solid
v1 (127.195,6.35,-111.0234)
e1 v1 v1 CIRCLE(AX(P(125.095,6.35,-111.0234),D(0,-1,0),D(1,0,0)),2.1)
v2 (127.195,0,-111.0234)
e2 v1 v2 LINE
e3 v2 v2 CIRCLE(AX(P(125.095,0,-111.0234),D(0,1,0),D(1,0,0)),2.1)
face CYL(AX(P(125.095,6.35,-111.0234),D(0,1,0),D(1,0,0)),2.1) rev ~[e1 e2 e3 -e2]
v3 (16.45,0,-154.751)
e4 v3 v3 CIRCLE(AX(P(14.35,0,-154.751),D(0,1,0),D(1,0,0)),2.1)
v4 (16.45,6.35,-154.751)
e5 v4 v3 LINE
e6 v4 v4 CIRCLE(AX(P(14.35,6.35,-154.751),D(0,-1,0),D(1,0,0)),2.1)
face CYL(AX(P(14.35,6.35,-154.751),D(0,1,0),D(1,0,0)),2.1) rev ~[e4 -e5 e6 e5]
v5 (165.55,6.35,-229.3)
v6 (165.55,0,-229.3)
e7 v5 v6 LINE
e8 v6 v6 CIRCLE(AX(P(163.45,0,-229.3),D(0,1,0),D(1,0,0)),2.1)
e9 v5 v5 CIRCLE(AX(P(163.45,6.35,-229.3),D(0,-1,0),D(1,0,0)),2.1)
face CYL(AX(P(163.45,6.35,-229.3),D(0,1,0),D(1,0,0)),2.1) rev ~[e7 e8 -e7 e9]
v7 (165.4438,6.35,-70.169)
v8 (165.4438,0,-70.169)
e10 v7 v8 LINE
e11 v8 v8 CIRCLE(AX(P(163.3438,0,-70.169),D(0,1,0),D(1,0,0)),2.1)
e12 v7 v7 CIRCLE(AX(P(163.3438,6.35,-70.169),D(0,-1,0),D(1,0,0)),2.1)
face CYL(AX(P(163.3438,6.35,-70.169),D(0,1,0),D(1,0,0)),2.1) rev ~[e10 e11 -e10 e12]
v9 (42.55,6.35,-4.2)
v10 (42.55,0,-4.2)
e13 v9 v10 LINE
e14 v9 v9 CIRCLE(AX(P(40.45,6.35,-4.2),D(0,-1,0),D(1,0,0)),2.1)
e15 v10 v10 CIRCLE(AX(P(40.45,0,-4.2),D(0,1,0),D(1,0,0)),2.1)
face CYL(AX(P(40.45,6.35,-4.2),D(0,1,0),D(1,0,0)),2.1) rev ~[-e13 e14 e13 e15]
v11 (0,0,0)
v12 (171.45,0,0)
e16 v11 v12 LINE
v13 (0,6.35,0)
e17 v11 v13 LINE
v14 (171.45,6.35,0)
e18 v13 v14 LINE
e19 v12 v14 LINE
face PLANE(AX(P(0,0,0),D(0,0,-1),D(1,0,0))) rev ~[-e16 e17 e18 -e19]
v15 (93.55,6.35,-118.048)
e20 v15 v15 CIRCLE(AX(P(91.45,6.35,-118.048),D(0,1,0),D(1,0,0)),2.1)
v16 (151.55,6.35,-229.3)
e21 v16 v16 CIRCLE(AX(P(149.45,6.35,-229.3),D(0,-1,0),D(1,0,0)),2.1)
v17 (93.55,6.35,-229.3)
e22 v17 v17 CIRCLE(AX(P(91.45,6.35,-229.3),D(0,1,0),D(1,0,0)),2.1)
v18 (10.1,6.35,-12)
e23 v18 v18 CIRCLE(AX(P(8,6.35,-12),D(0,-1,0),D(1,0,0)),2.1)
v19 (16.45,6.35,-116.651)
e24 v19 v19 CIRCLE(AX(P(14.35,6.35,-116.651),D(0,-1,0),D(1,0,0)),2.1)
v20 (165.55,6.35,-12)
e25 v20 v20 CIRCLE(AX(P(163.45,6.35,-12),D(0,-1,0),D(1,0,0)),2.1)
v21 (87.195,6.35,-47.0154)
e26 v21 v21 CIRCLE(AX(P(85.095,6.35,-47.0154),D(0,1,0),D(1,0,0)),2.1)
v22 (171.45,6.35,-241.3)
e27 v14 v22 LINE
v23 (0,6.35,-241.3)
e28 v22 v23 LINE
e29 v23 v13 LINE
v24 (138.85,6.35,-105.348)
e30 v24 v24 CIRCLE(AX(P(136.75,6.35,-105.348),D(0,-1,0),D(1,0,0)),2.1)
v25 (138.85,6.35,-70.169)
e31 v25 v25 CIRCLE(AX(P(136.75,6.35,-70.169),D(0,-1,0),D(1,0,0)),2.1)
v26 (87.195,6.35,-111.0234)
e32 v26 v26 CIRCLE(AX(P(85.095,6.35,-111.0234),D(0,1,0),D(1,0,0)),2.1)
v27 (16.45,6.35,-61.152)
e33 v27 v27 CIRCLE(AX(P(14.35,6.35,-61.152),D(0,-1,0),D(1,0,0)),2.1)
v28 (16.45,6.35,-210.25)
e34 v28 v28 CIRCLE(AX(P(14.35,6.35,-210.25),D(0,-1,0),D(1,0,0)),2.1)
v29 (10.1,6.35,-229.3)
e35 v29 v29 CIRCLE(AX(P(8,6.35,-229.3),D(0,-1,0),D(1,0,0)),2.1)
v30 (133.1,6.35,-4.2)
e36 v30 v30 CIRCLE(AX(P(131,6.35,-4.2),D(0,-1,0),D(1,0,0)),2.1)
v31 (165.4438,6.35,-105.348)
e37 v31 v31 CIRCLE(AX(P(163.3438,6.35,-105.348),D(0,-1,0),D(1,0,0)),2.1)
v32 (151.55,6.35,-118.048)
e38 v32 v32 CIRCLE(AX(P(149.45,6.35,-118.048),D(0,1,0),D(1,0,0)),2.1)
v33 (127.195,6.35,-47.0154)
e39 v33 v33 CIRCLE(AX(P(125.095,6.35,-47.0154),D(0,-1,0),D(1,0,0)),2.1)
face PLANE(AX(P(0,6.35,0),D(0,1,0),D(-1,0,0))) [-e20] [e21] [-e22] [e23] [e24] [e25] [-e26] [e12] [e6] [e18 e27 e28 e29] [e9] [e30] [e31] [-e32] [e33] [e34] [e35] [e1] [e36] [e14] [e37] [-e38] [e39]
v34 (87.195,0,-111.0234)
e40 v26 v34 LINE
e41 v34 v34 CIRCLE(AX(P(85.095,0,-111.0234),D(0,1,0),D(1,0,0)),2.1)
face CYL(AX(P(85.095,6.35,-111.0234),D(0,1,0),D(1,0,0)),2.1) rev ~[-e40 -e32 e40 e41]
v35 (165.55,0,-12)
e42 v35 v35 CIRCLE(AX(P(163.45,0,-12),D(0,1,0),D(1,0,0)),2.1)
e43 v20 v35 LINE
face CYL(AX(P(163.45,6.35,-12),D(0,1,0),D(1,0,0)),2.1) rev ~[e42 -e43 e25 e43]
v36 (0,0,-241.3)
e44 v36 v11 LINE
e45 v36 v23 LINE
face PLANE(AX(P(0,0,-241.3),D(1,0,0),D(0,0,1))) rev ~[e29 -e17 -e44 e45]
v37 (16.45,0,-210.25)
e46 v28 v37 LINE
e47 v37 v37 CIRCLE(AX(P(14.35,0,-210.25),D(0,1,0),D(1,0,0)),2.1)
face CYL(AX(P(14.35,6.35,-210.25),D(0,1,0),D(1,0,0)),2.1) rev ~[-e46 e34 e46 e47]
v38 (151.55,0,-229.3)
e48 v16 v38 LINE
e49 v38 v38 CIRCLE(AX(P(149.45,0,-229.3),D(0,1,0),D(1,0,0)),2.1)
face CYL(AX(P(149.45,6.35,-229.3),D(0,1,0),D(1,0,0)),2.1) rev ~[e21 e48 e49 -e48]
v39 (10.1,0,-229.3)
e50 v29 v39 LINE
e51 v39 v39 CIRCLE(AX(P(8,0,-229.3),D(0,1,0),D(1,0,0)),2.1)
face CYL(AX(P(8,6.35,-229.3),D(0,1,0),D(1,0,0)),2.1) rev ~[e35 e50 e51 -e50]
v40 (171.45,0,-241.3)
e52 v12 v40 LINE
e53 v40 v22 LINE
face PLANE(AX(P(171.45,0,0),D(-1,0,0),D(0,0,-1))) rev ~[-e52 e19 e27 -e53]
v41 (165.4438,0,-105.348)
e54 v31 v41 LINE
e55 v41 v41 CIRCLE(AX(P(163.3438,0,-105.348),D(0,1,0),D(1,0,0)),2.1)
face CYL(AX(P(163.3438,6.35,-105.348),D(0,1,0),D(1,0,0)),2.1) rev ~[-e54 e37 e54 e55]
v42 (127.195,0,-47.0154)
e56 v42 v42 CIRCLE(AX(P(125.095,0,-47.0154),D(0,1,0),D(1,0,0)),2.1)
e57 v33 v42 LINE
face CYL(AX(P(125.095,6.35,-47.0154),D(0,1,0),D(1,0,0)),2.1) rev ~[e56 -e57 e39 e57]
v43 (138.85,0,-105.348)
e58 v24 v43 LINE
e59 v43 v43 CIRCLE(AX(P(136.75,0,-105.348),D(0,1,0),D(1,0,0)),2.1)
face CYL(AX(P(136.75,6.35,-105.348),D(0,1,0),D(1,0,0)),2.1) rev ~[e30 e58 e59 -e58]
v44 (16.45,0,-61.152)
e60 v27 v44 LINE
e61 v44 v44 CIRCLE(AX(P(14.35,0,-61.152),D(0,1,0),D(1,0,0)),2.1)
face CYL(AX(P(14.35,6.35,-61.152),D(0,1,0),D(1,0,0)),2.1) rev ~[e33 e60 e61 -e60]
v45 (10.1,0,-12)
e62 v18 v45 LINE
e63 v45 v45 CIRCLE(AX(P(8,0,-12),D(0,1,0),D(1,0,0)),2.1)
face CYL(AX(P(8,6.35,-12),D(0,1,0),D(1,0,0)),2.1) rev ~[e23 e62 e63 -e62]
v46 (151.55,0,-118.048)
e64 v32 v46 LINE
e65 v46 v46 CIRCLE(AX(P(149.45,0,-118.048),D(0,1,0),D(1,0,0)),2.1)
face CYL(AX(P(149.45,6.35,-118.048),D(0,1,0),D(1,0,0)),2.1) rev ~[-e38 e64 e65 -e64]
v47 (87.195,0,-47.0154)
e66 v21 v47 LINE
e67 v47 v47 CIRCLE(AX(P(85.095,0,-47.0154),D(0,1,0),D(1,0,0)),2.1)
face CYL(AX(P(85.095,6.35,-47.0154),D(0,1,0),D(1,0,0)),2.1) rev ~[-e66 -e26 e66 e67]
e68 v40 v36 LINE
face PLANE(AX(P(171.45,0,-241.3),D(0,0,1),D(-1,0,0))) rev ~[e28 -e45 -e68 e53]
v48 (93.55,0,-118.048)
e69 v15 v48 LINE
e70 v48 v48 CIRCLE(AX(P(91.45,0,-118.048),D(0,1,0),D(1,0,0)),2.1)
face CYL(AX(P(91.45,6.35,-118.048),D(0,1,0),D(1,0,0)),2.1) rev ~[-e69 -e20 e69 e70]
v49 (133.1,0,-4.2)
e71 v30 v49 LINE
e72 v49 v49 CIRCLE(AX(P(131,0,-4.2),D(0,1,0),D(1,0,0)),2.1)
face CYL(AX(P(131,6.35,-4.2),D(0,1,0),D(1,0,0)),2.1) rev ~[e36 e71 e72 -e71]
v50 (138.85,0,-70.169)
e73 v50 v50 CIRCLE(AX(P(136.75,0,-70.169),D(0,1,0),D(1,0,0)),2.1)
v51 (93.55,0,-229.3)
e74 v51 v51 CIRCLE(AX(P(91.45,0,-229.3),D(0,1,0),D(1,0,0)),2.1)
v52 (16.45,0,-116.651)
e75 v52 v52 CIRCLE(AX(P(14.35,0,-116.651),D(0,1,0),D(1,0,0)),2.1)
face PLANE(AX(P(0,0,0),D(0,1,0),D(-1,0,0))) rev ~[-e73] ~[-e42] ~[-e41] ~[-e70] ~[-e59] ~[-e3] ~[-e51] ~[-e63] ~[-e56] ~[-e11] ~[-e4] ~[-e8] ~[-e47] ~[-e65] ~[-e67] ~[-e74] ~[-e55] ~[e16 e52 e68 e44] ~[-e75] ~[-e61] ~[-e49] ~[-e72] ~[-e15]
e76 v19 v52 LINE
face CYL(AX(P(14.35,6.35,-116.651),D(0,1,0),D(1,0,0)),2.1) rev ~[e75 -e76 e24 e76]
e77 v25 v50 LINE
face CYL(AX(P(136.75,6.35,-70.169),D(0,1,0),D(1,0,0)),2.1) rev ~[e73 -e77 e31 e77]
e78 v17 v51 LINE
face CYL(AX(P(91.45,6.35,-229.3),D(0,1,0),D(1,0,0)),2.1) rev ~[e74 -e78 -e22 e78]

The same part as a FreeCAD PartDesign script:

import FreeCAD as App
import Part
import Sketcher
from FreeCAD import Vector
Q = App.Units.Quantity

doc = App.newDocument("Part")
body = doc.addObject("PartDesign::Body", "Body")

# Sketch on XZ plane
sketch1 = body.newObject("Sketcher::SketchObject", "Sketch")
sketch1.AttachmentSupport = (doc.getObject("XZ_Plane"), [""])
sketch1.MapMode = "FlatFace"
sketch1.addGeometry([
    Part.LineSegment(Vector(0, -241.3, 0), Vector(0, 0, 0)),
    Part.LineSegment(Vector(0, 0, 0), Vector(171.45, 0, 0)),
    Part.LineSegment(Vector(171.45, 0, 0), Vector(171.45, -241.3, 0)),
    Part.LineSegment(Vector(171.45, -241.3, 0), Vector(0, -241.3, 0)),
], False)
sketch1.addConstraint([
    Sketcher.Constraint("Coincident", 0, 2, 1, 1),
    Sketcher.Constraint("Coincident", 1, 2, 2, 1),
    Sketcher.Constraint("Coincident", 2, 2, 3, 1),
    Sketcher.Constraint("Coincident", 3, 2, 0, 1),
    Sketcher.Constraint("Vertical", 0),
    Sketcher.Constraint("Horizontal", 1),
    Sketcher.Constraint("Vertical", 2),
    Sketcher.Constraint("Horizontal", 3),
    Sketcher.Constraint("Coincident", 0, 2, -1, 1),
    Sketcher.Constraint("DistanceY", 0, 1, 0, 2, Q("9.5 in")),
    Sketcher.Constraint("DistanceX", 1, 1, 1, 2, Q("6.75 in")),
])
pad1 = body.newObject("PartDesign::Pad", "Pad")
pad1.Profile = sketch1
pad1.Length = Q("0.25 in")
pad1.Reversed = True

# Sketch on XZ plane
sketch2 = body.newObject("Sketcher::SketchObject", "Sketch001")
sketch2.AttachmentSupport = (doc.getObject("XZ_Plane"), [""])
sketch2.MapMode = "FlatFace"
sketch2.AttachmentOffset = App.Placement(Vector(0, 0, -0.25 * 25.4), App.Rotation())
sketch2.addGeometry([
    Part.Circle(Vector(163.45, -12, 0), Vector(0, 0, 1), 2.1),
    Part.Circle(Vector(8, -12, 0), Vector(0, 0, 1), 2.1),
    Part.Circle(Vector(8, -229.3, 0), Vector(0, 0, 1), 2.1),
    Part.Circle(Vector(163.45, -229.3, 0), Vector(0, 0, 1), 2.1),
], False)
sketch2.addConstraint([
    Sketcher.Constraint("Equal", 0, 1),
    Sketcher.Constraint("Equal", 1, 2),
    Sketcher.Constraint("Equal", 2, 3),
    Sketcher.Constraint("Horizontal", 0, 3, 1, 3),
    Sketcher.Constraint("Horizontal", 2, 3, 3, 3),
    Sketcher.Constraint("Vertical", 1, 3, 2, 3),
    Sketcher.Constraint("Vertical", 0, 3, 3, 3),
    Sketcher.Constraint("Diameter", 0, Q("4.2 mm")),
    Sketcher.Constraint("DistanceY", 0, 3, -1, 1, Q("12 mm")),
    Sketcher.Constraint("DistanceX", -1, 1, 1, 3, Q("8 mm")),
    Sketcher.Constraint("DistanceX", -1, 1, 0, 3, Q("163.45 mm")),
    Sketcher.Constraint("DistanceY", 2, 3, -1, 1, Q("229.3 mm")),
])
pocket1 = body.newObject("PartDesign::Pocket", "Pocket")
pocket1.Profile = sketch2
pocket1.Length = Q("1 in")
pocket1.Reversed = True

# Sketch on XZ plane
sketch3 = body.newObject("Sketcher::SketchObject", "Sketch002")
sketch3.AttachmentSupport = (doc.getObject("XZ_Plane"), [""])
sketch3.MapMode = "FlatFace"
sketch3.AttachmentOffset = App.Placement(Vector(0, 0, -0.25 * 25.4), App.Rotation())
sketch3.addGeometry([
    Part.Circle(Vector(14.35, -61.152, 0), Vector(0, 0, 1), 2.1),  # 0
    Part.Circle(Vector(14.35, -116.651, 0), Vector(0, 0, 1), 2.1),  # 1
    Part.Circle(Vector(14.35, -154.751, 0), Vector(0, 0, 1), 2.1),  # 2
    Part.Circle(Vector(14.35, -210.25, 0), Vector(0, 0, 1), 2.1),  # 3
    Part.Circle(Vector(91.45, -229.3, 0), Vector(0, 0, 1), 2.1),  # 4
    Part.Circle(Vector(149.45, -229.3, 0), Vector(0, 0, 1), 2.1),  # 5
    Part.Circle(Vector(85.095, -47.0154, 0), Vector(0, 0, 1), 2.1),  # 6
    Part.Circle(Vector(85.095, -111.0234, 0), Vector(0, 0, 1), 2.1),  # 7
    Part.Circle(Vector(125.095, -111.0234, 0), Vector(0, 0, 1), 2.1),  # 8
    Part.Circle(Vector(125.095, -47.0154, 0), Vector(0, 0, 1), 2.1),  # 9
    Part.Circle(Vector(149.45, -118.048, 0), Vector(0, 0, 1), 2.1),  # 10
    Part.Circle(Vector(91.45, -118.048, 0), Vector(0, 0, 1), 2.1),  # 11
], False)
sketch3.addConstraint([
    Sketcher.Constraint("Equal", 0, 1),
    Sketcher.Constraint("Equal", 1, 2),
    Sketcher.Constraint("Equal", 2, 3),
    Sketcher.Constraint("Equal", 3, 4),
    Sketcher.Constraint("Equal", 4, 5),
    Sketcher.Constraint("Equal", 5, 6),
    Sketcher.Constraint("Equal", 6, 7),
    Sketcher.Constraint("Equal", 7, 8),
    Sketcher.Constraint("Equal", 8, 9),
    Sketcher.Constraint("Equal", 9, 10),
    Sketcher.Constraint("Equal", 10, 11),
    Sketcher.Constraint("Horizontal", 4, 3, 5, 3),
    Sketcher.Constraint("Horizontal", 7, 3, 8, 3),
    Sketcher.Constraint("Horizontal", 6, 3, 9, 3),
    Sketcher.Constraint("Horizontal", 10, 3, 11, 3),
    Sketcher.Constraint("Vertical", 0, 3, 1, 3),
    Sketcher.Constraint("Vertical", 1, 3, 2, 3),
    Sketcher.Constraint("Vertical", 2, 3, 3, 3),
    Sketcher.Constraint("Vertical", 6, 3, 7, 3),
    Sketcher.Constraint("Vertical", 8, 3, 9, 3),
    Sketcher.Constraint("Vertical", 5, 3, 10, 3),
    Sketcher.Constraint("Vertical", 4, 3, 11, 3),
    Sketcher.Constraint("DistanceY", 2, 3, 1, 3, Q("1.5 in")),
    Sketcher.Constraint("Diameter", 0, Q("4.2 mm")),
    Sketcher.Constraint("DistanceY", 4, 3, 3, 3, Q("0.75 in")),
    Sketcher.Constraint("DistanceY", 7, 3, 6, 3, Q("2.52 in")),
    Sketcher.Constraint("DistanceY", 5, 3, 10, 3, Q("4.38 in")),
    Sketcher.Constraint("DistanceY", 6, 3, -1, 1, Q("1.851 in")),
    Sketcher.Constraint("DistanceY", 1, 3, 0, 3, Q("2.185 in")),
    Sketcher.Constraint("DistanceY", 3, 3, 2, 3, Q("2.185 in")),
    Sketcher.Constraint("DistanceX", 7, 3, 8, 3, Q("1.5748 in")),
    Sketcher.Constraint("DistanceX", 4, 3, 5, 3, Q("58 mm")),
    Sketcher.Constraint("DistanceX", -1, 1, 8, 3, Q("4.925 in")),
    Sketcher.Constraint("DistanceX", -1, 1, 4, 3, Q("3.6004 in")),
    Sketcher.Constraint("DistanceX", 3, 3, 5, 3, Q("5.3189 in")),
    Sketcher.Constraint("DistanceY", 0, 3, -1, 1, Q("61.152 mm")),
])
pocket2 = body.newObject("PartDesign::Pocket", "Pocket001")
pocket2.Profile = sketch3
pocket2.Length = Q("1 in")
pocket2.Reversed = True

# Sketch on XZ plane
sketch4 = body.newObject("Sketcher::SketchObject", "Sketch003")
sketch4.AttachmentSupport = (doc.getObject("XZ_Plane"), [""])
sketch4.MapMode = "FlatFace"
sketch4.AttachmentOffset = App.Placement(Vector(0, 0, -0.25 * 25.4), App.Rotation())
sketch4.addGeometry([
    Part.Circle(Vector(131, -4.2, 0), Vector(0, 0, 1), 2.1),
    Part.Circle(Vector(40.45, -4.2, 0), Vector(0, 0, 1), 2.1),
], False)
sketch4.addConstraint([
    Sketcher.Constraint("Equal", 0, 1),
    Sketcher.Constraint("Horizontal", 0, 3, 1, 3),
    Sketcher.Constraint("Diameter", 0, Q("4.2 mm")),
    Sketcher.Constraint("DistanceY", 0, 3, -1, 1, Q("4.2 mm")),
    Sketcher.Constraint("DistanceX", -1, 1, 1, 3, Q("40.45 mm")),
    Sketcher.Constraint("DistanceX", -1, 1, 0, 3, Q("131 mm")),
])
pocket3 = body.newObject("PartDesign::Pocket", "Pocket002")
pocket3.Profile = sketch4
pocket3.Length = Q("1 in")
pocket3.Reversed = True

# Sketch on XZ plane
sketch5 = body.newObject("Sketcher::SketchObject", "Sketch004")
sketch5.AttachmentSupport = (doc.getObject("XZ_Plane"), [""])
sketch5.MapMode = "FlatFace"
sketch5.AttachmentOffset = App.Placement(Vector(0, 0, -0.25 * 25.4), App.Rotation())
sketch5.addGeometry([
    Part.Circle(Vector(163.3438, -70.169, 0), Vector(0, 0, 1), 2.1),
    Part.Circle(Vector(163.3438, -105.348, 0), Vector(0, 0, 1), 2.1),
    Part.Circle(Vector(136.75, -70.169, 0), Vector(0, 0, 1), 2.1),
    Part.Circle(Vector(136.75, -105.348, 0), Vector(0, 0, 1), 2.1),
], False)
sketch5.addConstraint([
    Sketcher.Constraint("Equal", 0, 1),
    Sketcher.Constraint("Equal", 1, 2),
    Sketcher.Constraint("Equal", 2, 3),
    Sketcher.Constraint("Horizontal", 0, 3, 2, 3),
    Sketcher.Constraint("Horizontal", 1, 3, 3, 3),
    Sketcher.Constraint("Vertical", 0, 3, 1, 3),
    Sketcher.Constraint("Vertical", 2, 3, 3, 3),
    Sketcher.Constraint("Diameter", 0, Q("4.2 mm")),
    Sketcher.Constraint("DistanceY", 1, 3, 0, 3, Q("1.385 in")),
    Sketcher.Constraint("DistanceX", 2, 3, 0, 3, Q("1.047 in")),
    Sketcher.Constraint("DistanceX", -1, 1, 0, 3, Q("163.3438 mm")),
    Sketcher.Constraint("DistanceY", 0, 3, -1, 1, Q("70.169 mm")),
])
pocket4 = body.newObject("PartDesign::Pocket", "Pocket003")
pocket4.Profile = sketch5
pocket4.Length = Q("1 in")
pocket4.Reversed = True

doc.recompute()
